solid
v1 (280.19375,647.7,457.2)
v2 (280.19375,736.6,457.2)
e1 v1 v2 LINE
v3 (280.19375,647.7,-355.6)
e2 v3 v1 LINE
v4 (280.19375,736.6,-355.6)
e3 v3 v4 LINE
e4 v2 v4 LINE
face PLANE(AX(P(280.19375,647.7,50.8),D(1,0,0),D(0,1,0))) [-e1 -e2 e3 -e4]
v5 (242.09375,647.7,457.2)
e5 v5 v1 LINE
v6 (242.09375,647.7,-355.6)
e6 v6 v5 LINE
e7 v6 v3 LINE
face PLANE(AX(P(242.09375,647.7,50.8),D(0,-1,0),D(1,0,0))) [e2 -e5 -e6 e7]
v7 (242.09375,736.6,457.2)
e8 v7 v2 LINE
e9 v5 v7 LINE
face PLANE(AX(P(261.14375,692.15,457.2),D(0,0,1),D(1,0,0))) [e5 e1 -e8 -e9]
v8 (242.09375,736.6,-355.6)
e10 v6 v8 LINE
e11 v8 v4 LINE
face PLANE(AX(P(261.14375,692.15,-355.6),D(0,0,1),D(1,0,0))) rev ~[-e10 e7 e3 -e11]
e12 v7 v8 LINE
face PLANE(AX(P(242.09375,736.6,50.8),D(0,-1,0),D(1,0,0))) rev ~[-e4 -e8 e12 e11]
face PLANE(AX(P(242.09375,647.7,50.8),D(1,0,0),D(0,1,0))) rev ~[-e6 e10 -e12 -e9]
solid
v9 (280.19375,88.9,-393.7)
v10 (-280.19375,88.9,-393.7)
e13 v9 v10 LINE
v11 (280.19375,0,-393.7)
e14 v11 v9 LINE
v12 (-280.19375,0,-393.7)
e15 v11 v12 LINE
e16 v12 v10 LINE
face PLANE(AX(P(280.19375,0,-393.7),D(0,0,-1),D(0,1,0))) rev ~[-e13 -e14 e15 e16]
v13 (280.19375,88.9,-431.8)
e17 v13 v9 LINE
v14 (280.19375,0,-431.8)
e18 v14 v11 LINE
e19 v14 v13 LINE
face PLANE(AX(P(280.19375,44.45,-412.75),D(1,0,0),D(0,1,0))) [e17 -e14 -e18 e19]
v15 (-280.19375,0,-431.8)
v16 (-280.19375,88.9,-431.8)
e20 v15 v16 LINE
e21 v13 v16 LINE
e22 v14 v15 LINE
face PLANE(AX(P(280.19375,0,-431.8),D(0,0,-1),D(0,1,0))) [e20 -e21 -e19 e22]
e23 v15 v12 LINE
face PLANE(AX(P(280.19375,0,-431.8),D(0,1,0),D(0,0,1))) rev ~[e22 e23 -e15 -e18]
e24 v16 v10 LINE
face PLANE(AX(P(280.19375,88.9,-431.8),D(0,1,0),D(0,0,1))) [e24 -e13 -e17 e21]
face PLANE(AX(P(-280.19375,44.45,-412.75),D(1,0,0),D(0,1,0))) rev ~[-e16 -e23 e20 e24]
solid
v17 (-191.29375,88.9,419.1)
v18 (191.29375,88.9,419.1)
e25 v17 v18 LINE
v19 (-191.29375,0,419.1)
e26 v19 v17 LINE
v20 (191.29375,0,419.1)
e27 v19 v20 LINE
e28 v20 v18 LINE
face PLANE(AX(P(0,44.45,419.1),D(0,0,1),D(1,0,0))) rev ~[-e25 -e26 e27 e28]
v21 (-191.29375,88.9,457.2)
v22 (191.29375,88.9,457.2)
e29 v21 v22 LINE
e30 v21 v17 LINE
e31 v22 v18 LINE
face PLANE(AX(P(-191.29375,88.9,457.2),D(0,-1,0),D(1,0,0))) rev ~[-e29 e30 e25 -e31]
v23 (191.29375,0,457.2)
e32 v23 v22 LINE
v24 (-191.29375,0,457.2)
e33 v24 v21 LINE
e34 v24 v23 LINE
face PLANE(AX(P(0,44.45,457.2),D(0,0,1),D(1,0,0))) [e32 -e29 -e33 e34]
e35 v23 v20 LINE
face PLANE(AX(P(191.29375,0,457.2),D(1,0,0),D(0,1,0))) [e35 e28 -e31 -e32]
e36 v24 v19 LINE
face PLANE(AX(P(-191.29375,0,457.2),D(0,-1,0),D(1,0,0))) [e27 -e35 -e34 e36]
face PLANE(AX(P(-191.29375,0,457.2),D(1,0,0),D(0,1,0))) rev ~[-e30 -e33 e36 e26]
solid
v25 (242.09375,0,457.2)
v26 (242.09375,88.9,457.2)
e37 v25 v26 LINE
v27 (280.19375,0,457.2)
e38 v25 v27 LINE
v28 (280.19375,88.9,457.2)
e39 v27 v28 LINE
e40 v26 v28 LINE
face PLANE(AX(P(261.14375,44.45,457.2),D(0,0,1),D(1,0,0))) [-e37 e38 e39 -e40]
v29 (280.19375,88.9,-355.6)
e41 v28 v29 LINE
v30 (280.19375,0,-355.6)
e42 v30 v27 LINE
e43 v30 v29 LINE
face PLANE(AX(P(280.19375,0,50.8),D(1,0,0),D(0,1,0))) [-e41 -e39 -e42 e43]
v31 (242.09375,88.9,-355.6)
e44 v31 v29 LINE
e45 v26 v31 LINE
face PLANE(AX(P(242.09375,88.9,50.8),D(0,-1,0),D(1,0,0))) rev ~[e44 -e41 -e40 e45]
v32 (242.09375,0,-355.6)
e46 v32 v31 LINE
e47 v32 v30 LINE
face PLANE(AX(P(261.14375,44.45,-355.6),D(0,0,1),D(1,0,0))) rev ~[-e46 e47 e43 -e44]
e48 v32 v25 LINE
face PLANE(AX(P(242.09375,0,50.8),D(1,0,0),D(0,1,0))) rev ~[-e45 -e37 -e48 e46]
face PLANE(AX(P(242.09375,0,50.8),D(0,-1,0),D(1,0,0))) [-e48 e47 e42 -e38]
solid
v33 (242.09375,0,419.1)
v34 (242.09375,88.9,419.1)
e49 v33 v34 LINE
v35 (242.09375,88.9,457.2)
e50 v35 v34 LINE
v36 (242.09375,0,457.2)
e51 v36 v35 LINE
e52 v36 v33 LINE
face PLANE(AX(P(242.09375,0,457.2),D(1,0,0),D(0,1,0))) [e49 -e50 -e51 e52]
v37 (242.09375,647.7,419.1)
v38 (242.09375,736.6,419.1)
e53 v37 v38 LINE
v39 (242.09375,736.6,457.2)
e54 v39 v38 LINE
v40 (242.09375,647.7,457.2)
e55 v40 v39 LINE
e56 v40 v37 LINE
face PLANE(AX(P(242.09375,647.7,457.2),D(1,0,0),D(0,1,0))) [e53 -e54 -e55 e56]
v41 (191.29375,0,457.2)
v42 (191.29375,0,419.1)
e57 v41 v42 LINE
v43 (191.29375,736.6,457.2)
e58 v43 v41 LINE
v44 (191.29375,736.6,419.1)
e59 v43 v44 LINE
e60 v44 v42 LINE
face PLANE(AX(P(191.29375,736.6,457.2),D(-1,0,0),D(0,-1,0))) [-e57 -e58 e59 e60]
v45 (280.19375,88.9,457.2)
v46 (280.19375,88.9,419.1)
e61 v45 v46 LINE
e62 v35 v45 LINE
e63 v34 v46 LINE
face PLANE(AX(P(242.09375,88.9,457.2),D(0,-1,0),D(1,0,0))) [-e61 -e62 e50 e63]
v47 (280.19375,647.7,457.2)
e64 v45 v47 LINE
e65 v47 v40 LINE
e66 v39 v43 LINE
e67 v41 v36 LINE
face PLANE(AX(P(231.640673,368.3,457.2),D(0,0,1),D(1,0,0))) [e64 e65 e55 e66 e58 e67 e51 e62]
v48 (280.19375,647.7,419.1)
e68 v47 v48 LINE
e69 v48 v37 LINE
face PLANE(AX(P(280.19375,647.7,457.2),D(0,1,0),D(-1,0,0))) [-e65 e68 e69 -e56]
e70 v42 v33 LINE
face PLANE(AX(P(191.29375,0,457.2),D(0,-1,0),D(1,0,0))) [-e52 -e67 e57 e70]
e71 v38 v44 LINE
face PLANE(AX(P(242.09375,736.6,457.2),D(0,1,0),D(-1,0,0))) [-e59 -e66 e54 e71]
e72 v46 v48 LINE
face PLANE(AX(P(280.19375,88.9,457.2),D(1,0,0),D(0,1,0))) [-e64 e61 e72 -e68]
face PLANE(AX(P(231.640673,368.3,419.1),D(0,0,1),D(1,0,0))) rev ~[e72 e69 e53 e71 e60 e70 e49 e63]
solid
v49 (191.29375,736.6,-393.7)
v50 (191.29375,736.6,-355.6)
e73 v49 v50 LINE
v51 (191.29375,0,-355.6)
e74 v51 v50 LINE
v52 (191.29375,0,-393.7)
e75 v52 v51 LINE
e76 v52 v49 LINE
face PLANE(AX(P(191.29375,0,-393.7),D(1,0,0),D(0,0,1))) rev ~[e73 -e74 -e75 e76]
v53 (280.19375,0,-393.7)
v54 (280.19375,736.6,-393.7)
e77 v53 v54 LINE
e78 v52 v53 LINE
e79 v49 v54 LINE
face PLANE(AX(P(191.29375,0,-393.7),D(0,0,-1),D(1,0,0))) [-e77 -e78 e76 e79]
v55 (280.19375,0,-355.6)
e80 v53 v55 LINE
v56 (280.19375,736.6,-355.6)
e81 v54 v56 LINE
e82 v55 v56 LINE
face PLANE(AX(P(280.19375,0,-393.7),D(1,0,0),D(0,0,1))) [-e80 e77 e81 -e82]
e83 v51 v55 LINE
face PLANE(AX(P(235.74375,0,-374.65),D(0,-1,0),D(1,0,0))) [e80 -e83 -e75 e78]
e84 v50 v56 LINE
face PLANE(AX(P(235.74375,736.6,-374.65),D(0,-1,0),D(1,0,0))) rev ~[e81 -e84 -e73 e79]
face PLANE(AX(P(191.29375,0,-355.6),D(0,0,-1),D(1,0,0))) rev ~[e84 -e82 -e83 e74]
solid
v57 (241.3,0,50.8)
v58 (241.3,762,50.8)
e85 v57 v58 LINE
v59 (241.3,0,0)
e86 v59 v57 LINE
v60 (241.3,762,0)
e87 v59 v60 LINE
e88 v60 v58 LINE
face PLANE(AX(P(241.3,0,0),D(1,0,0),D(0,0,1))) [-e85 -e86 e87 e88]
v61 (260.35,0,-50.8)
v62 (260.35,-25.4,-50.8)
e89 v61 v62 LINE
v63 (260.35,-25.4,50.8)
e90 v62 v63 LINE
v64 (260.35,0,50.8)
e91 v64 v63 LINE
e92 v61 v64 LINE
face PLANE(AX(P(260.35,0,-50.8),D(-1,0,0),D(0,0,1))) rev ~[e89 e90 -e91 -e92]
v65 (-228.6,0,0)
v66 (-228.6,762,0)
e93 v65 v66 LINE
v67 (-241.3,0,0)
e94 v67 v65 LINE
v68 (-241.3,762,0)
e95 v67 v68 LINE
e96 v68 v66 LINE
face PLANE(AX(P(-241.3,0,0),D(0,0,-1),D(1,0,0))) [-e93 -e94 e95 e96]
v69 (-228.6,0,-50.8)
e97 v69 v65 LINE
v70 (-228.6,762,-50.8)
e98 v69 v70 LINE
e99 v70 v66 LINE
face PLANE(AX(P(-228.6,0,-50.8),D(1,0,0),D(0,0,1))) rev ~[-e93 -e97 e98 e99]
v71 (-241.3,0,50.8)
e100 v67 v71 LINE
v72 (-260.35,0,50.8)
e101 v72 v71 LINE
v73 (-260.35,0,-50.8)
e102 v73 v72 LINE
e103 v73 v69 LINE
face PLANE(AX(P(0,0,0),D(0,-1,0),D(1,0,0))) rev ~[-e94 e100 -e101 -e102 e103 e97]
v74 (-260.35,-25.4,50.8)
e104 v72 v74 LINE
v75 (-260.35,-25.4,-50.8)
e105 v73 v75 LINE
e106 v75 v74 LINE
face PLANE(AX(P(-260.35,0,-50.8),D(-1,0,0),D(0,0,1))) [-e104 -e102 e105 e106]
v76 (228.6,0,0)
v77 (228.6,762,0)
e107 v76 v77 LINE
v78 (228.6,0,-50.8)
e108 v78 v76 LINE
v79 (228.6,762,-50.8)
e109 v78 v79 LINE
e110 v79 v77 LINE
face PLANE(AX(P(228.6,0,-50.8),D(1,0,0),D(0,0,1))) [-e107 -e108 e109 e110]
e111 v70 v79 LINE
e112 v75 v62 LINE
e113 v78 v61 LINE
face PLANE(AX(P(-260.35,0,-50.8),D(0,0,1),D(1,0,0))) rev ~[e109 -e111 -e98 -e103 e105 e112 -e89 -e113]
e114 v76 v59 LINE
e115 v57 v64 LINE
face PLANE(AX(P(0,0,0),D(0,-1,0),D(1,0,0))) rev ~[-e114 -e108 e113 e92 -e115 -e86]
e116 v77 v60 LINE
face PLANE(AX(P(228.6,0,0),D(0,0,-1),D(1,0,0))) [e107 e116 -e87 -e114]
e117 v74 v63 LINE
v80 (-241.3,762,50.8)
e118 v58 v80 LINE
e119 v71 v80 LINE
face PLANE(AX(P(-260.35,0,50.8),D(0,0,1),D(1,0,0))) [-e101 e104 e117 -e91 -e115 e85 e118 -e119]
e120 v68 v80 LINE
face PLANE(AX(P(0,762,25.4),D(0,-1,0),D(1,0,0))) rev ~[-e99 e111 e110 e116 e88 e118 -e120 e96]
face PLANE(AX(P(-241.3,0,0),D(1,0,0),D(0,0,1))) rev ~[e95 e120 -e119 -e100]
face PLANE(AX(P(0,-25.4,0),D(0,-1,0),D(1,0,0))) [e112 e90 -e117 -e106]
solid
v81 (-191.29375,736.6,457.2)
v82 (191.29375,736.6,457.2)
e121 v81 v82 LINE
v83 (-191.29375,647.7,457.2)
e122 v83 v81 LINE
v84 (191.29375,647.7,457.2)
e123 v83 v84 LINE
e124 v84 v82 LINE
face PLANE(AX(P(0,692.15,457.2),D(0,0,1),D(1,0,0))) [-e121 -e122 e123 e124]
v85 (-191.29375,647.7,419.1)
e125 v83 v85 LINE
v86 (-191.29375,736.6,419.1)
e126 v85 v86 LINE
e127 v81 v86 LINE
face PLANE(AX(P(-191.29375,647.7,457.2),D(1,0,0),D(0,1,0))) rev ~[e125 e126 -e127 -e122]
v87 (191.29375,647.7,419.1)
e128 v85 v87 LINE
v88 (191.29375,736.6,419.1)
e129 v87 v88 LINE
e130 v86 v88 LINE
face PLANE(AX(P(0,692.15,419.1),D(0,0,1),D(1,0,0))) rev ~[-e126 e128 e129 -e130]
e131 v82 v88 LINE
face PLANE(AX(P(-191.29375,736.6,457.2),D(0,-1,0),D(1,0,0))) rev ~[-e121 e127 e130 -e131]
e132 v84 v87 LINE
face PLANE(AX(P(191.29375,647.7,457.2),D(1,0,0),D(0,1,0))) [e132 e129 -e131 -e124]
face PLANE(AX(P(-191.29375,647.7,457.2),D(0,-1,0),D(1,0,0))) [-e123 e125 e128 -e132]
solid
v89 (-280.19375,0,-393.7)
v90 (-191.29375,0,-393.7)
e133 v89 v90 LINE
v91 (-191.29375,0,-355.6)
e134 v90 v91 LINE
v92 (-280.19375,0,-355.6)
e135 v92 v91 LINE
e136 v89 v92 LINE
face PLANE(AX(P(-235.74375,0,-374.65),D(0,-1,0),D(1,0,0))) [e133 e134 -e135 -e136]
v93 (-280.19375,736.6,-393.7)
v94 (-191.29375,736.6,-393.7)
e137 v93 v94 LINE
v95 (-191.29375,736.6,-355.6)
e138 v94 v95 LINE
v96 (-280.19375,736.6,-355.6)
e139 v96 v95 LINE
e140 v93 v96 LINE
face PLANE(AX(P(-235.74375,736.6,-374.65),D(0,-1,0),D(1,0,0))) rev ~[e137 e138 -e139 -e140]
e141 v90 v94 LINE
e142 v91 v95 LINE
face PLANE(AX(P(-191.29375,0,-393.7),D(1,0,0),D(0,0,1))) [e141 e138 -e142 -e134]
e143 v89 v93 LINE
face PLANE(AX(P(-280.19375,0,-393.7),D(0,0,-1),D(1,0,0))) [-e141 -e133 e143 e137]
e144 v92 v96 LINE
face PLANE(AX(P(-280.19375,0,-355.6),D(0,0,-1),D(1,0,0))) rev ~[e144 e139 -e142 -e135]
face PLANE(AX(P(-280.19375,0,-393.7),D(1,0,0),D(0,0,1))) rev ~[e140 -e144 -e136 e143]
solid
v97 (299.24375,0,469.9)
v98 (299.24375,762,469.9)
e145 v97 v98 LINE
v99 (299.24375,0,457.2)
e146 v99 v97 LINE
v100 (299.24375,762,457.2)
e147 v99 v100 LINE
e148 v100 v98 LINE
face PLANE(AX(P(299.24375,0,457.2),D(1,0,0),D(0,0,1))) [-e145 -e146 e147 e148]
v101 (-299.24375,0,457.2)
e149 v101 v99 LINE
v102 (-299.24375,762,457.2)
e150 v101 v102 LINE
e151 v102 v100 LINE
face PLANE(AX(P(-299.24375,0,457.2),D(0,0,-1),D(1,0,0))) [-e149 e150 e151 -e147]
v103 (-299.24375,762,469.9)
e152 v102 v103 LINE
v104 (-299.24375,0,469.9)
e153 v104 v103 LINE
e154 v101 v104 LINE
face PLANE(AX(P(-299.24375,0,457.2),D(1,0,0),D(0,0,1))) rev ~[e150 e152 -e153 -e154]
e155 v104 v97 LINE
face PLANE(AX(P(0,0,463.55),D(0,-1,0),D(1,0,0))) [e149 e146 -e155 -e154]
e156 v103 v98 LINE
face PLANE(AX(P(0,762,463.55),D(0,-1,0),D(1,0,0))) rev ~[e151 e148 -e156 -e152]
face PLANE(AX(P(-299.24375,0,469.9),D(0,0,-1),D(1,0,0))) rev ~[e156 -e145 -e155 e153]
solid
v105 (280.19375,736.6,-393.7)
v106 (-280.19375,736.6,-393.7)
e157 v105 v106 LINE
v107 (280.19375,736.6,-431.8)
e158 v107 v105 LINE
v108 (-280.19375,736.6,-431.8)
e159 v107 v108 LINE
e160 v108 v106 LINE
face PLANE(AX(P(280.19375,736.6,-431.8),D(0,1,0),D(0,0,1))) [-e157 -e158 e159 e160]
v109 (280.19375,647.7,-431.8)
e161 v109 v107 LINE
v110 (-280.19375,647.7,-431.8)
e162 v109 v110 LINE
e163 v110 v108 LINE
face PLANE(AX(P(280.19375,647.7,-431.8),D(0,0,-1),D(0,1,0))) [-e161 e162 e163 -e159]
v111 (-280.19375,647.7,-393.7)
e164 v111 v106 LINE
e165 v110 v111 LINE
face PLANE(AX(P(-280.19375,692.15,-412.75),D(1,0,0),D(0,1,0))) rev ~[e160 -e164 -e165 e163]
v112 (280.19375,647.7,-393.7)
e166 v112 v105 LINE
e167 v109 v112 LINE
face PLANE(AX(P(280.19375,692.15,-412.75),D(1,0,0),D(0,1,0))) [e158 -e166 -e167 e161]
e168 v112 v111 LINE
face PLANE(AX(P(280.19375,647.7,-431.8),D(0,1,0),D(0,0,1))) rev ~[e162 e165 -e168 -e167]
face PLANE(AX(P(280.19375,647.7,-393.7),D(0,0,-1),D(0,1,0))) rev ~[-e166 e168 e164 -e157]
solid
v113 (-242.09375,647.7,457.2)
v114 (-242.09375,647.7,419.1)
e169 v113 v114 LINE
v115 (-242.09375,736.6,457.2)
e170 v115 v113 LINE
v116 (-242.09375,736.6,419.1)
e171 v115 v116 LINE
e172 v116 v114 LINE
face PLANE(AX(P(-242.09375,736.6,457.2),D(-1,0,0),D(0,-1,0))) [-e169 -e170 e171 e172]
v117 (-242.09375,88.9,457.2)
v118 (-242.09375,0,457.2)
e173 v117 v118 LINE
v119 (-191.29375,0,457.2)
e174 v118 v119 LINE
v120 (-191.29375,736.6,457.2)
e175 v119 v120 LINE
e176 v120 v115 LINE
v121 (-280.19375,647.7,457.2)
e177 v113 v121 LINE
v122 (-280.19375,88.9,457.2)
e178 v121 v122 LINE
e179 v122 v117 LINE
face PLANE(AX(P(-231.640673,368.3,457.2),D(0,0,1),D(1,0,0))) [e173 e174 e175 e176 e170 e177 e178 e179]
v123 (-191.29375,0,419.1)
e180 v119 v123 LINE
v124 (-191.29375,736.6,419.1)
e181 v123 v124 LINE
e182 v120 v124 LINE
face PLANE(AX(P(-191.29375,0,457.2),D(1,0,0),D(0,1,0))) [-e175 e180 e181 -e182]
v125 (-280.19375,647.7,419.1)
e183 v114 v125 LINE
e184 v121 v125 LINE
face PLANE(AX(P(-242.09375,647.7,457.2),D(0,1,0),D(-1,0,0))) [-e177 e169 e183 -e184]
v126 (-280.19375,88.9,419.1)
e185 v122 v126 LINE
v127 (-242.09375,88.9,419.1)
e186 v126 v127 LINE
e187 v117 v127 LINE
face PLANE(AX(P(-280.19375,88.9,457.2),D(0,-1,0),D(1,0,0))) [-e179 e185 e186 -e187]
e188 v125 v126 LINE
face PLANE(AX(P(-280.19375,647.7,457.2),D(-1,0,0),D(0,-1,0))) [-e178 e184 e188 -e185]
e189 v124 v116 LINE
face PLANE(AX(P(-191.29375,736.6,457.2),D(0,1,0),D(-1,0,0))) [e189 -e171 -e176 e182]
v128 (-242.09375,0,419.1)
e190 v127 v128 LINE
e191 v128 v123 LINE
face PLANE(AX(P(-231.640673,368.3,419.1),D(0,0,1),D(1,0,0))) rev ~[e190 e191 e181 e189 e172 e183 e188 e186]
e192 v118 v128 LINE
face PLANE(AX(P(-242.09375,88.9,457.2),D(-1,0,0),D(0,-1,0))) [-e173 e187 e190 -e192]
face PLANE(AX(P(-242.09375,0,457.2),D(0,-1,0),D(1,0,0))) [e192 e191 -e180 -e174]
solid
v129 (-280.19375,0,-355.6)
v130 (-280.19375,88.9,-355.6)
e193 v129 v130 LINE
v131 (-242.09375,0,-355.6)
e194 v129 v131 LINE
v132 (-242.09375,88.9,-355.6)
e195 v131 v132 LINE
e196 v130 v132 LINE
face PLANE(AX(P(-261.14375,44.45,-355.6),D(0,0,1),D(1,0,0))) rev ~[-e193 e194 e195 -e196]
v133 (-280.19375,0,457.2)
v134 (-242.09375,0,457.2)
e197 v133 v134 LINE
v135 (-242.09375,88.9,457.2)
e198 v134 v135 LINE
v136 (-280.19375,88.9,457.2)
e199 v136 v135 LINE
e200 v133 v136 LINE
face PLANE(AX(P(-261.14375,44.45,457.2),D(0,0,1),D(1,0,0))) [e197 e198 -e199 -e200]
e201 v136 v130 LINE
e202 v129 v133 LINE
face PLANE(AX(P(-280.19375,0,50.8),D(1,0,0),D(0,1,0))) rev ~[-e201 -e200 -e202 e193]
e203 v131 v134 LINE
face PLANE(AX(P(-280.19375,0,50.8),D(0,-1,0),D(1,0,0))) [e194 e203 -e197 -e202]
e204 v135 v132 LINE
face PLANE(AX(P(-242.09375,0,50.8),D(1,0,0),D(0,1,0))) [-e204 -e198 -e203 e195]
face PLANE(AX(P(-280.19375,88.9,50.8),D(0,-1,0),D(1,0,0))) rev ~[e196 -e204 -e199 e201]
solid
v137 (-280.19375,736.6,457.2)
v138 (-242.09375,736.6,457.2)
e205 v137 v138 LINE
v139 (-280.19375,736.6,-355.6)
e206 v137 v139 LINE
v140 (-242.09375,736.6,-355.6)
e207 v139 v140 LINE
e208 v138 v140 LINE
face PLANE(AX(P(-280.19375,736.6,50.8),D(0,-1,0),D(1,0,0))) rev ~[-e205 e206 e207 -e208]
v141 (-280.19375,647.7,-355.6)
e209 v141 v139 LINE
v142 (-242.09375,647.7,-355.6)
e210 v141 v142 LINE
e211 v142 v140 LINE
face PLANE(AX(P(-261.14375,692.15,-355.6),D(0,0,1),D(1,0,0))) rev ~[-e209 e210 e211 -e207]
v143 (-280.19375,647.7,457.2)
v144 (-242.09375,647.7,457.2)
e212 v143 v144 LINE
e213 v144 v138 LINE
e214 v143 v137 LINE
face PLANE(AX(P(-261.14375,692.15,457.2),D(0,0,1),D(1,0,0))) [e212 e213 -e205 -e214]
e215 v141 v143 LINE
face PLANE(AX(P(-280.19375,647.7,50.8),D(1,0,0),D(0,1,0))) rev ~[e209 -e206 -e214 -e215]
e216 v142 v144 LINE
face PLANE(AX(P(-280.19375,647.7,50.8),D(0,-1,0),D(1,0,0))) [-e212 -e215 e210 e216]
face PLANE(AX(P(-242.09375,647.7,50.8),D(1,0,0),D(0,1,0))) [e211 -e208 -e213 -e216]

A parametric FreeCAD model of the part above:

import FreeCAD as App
import Part
import Sketcher
Q = App.Units.Quantity

doc = App.newDocument("Part")
body = doc.addObject("PartDesign::Body", "Body")

sketch1 = doc.addObject("Sketcher::SketchObject", "Sketch")
body.addObject(sketch1)
sketch1.AttachmentSupport = (doc.XZ_Plane, [""])
sketch1.MapMode = "FlatFace"
sketch1.addGeometry([
    Part.LineSegment(App.Vector(241.3, 0, 0), App.Vector(241.3, 50.8, 0)),
    Part.LineSegment(App.Vector(241.3, 50.8, 0), App.Vector(-241.3, 50.8, 0)),
    Part.LineSegment(App.Vector(-241.3, 50.8, 0), App.Vector(-241.3, 0, 0)),
    Part.LineSegment(App.Vector(-241.3, 0, 0), App.Vector(-228.6, 0, 0)),
    Part.LineSegment(App.Vector(-228.6, 0, 0), App.Vector(-228.6, -50.8, 0)),
    Part.LineSegment(App.Vector(-228.6, -50.8, 0), App.Vector(228.6, -50.8, 0)),
    Part.LineSegment(App.Vector(228.6, -50.8, 0), App.Vector(228.6, 0, 0)),
    Part.LineSegment(App.Vector(228.6, 0, 0), App.Vector(241.3, 0, 0)),
], False)
sketch1.addConstraint([
    Sketcher.Constraint("Coincident", 0, 2, 1, 1),
    Sketcher.Constraint("Coincident", 1, 2, 2, 1),
    Sketcher.Constraint("Coincident", 2, 2, 3, 1),
    Sketcher.Constraint("Coincident", 3, 2, 4, 1),
    Sketcher.Constraint("Coincident", 4, 2, 5, 1),
    Sketcher.Constraint("Coincident", 5, 2, 6, 1),
    Sketcher.Constraint("Coincident", 6, 2, 7, 1),
    Sketcher.Constraint("Coincident", 7, 2, 0, 1),
    Sketcher.Constraint("Vertical", 0),
    Sketcher.Constraint("Horizontal", 1),
    Sketcher.Constraint("Vertical", 2),
    Sketcher.Constraint("Horizontal", 3),
    Sketcher.Constraint("Vertical", 4),
    Sketcher.Constraint("Horizontal", 5),
    Sketcher.Constraint("Vertical", 6),
    Sketcher.Constraint("Horizontal", 7),
    Sketcher.Constraint("Symmetric", 3, 2, 6, 2, -1, 1),
    Sketcher.Constraint("Symmetric", 2, 2, 7, 2, -2),
    Sketcher.Constraint("Equal", 2, 4),
    Sketcher.Constraint("DistanceX", 1, 2, 1, 1, Q("19 in")),
    Sketcher.Constraint("DistanceX", 5, 1, 5, 2, Q("18 in")),
    Sketcher.Constraint("DistanceY", 0, 1, 0, 2, Q("2 in")),
])
pad1 = doc.addObject("PartDesign::Pad", "Pad")
body.addObject(pad1)
pad1.Profile = sketch1
pad1.Length = Q("30 in")
pad1.Reversed = True

sketch2 = doc.addObject("Sketcher::SketchObject", "Sketch001")
body.addObject(sketch2)
sketch2.AttachmentSupport = (doc.XZ_Plane, [""])
sketch2.MapMode = "FlatFace"
sketch2.addGeometry([
    Part.LineSegment(App.Vector(-260.35, 50.8, 0), App.Vector(-260.35, -50.8, 0)),
    Part.LineSegment(App.Vector(-260.35, -50.8, 0), App.Vector(260.35, -50.8, 0)),
    Part.LineSegment(App.Vector(260.35, -50.8, 0), App.Vector(260.35, 50.8, 0)),
    Part.LineSegment(App.Vector(260.35, 50.8, 0), App.Vector(-260.35, 50.8, 0)),
], False)
sketch2.addConstraint([
    Sketcher.Constraint("Coincident", 0, 2, 1, 1),
    Sketcher.Constraint("Coincident", 1, 2, 2, 1),
    Sketcher.Constraint("Coincident", 2, 2, 3, 1),
    Sketcher.Constraint("Coincident", 3, 2, 0, 1),
    Sketcher.Constraint("Vertical", 0),
    Sketcher.Constraint("Horizontal", 1),
    Sketcher.Constraint("Vertical", 2),
    Sketcher.Constraint("Horizontal", 3),
    Sketcher.Constraint("Symmetric", 0, 2, 2, 2, -1, 1),
    Sketcher.Constraint("DistanceY", 0, 2, 0, 1, Q("4 in")),
    Sketcher.Constraint("DistanceX", 1, 1, 1, 2, Q("20.5 in")),
])
pad2 = doc.addObject("PartDesign::Pad", "Pad001")
body.addObject(pad2)
pad2.Profile = sketch2
pad2.Length = Q("1 in")
body2 = doc.addObject("PartDesign::Body", "Body001")

sketch3 = doc.addObject("Sketcher::SketchObject", "Sketch002")
body2.addObject(sketch3)
sketch3.AttachmentSupport = (doc.getObject("XY_Plane001"), [""])
sketch3.MapMode = "FlatFace"
sketch3.AttachmentOffset = App.Placement(App.Vector(0, 0, 2 * 25.4), App.Rotation())
sketch3.addGeometry([
    Part.LineSegment(App.Vector(-280.19375, 88.9, 0), App.Vector(-280.19375, 0, 0)),
    Part.LineSegment(App.Vector(-280.19375, 0, 0), App.Vector(-242.09375, 0, 0)),
    Part.LineSegment(App.Vector(-242.09375, 0, 0), App.Vector(-242.09375, 88.9, 0)),
    Part.LineSegment(App.Vector(-242.09375, 88.9, 0), App.Vector(-280.19375, 88.9, 0)),
], False)
sketch3.addConstraint([
    Sketcher.Constraint("Coincident", 0, 2, 1, 1),
    Sketcher.Constraint("Coincident", 1, 2, 2, 1),
    Sketcher.Constraint("Coincident", 2, 2, 3, 1),
    Sketcher.Constraint("Coincident", 3, 2, 0, 1),
    Sketcher.Constraint("Vertical", 0),
    Sketcher.Constraint("Horizontal", 1),
    Sketcher.Constraint("Vertical", 2),
    Sketcher.Constraint("Horizontal", 3),
    Sketcher.Constraint("PointOnObject", 0, 2, -1),
    Sketcher.Constraint("DistanceX", 1, 1, 1, 2, Q("1.5 in")),
    Sketcher.Constraint("DistanceY", 0, 2, 0, 1, Q("3.5 in")),
    Sketcher.Constraint("DistanceX", 0, 2, -1, 1, Q("11.03125 in")),
])
pad3 = doc.addObject("PartDesign::Pad", "Pad002")
body2.addObject(pad3)
pad3.Profile = sketch3
pad3.Length = Q("32 in")
pad3.Midplane = True
body3 = doc.addObject("PartDesign::Body", "Body002")

sketch4 = doc.addObject("Sketcher::SketchObject", "Sketch003")
body3.addObject(sketch4)
sketch4.AttachmentSupport = (doc.getObject("XY_Plane002"), [""])
sketch4.MapMode = "FlatFace"
sketch4.AttachmentOffset = App.Placement(App.Vector(0, 0, 2 * 25.4), App.Rotation())
sketch4.addGeometry([
    Part.LineSegment(App.Vector(-280.19375, 736.6, 0), App.Vector(-280.19375, 647.7, 0)),
    Part.LineSegment(App.Vector(-280.19375, 647.7, 0), App.Vector(-242.09375, 647.7, 0)),
    Part.LineSegment(App.Vector(-242.09375, 647.7, 0), App.Vector(-242.09375, 736.6, 0)),
    Part.LineSegment(App.Vector(-242.09375, 736.6, 0), App.Vector(-280.19375, 736.6, 0)),
], False)
sketch4.addConstraint([
    Sketcher.Constraint("Coincident", 0, 2, 1, 1),
    Sketcher.Constraint("Coincident", 1, 2, 2, 1),
    Sketcher.Constraint("Coincident", 2, 2, 3, 1),
    Sketcher.Constraint("Coincident", 3, 2, 0, 1),
    Sketcher.Constraint("Vertical", 0),
    Sketcher.Constraint("Horizontal", 1),
    Sketcher.Constraint("Vertical", 2),
    Sketcher.Constraint("Horizontal", 3),
    Sketcher.Constraint("DistanceX", 1, 1, 1, 2, Q("1.5 in")),
    Sketcher.Constraint("DistanceY", 0, 2, 0, 1, Q("3.5 in")),
    Sketcher.Constraint("DistanceY", -1, 1, 2, 2, Q("29 in")),
    Sketcher.Constraint("DistanceX", 0, 2, -1, 1, Q("11.03125 in")),
])
pad4 = doc.addObject("PartDesign::Pad", "Pad003")
body3.addObject(pad4)
pad4.Profile = sketch4
pad4.Length = Q("32 in")
pad4.Midplane = True
body4 = doc.addObject("PartDesign::Body", "Body003")

sketch5 = doc.addObject("Sketcher::SketchObject", "Sketch004")
body4.addObject(sketch5)
sketch5.AttachmentSupport = (doc.getObject("XY_Plane003"), [""])
sketch5.MapMode = "FlatFace"
sketch5.AttachmentOffset = App.Placement(App.Vector(0, 0, 2 * 25.4), App.Rotation())
sketch5.addGeometry([
    Part.LineSegment(App.Vector(242.09375, 736.6, 0), App.Vector(242.09375, 647.7, 0)),
    Part.LineSegment(App.Vector(242.09375, 647.7, 0), App.Vector(280.19375, 647.7, 0)),
    Part.LineSegment(App.Vector(280.19375, 647.7, 0), App.Vector(280.19375, 736.6, 0)),
    Part.LineSegment(App.Vector(280.19375, 736.6, 0), App.Vector(242.09375, 736.6, 0)),
], False)
sketch5.addConstraint([
    Sketcher.Constraint("Coincident", 0, 2, 1, 1),
    Sketcher.Constraint("Coincident", 1, 2, 2, 1),
    Sketcher.Constraint("Coincident", 2, 2, 3, 1),
    Sketcher.Constraint("Coincident", 3, 2, 0, 1),
    Sketcher.Constraint("Vertical", 0),
    Sketcher.Constraint("Horizontal", 1),
    Sketcher.Constraint("Vertical", 2),
    Sketcher.Constraint("Horizontal", 3),
    Sketcher.Constraint("DistanceX", 1, 1, 1, 2, Q("1.5 in")),
    Sketcher.Constraint("DistanceY", 0, 2, 0, 1, Q("3.5 in")),
    Sketcher.Constraint("DistanceY", -1, 1, 2, 2, Q("29 in")),
    Sketcher.Constraint("DistanceX", -1, 1, 0, 2, Q("9.53125 in")),
])
pad5 = doc.addObject("PartDesign::Pad", "Pad004")
body4.addObject(pad5)
pad5.Profile = sketch5
pad5.Length = Q("32 in")
pad5.Midplane = True
body5 = doc.addObject("PartDesign::Body", "Body004")

sketch6 = doc.addObject("Sketcher::SketchObject", "Sketch005")
body5.addObject(sketch6)
sketch6.AttachmentSupport = (doc.getObject("XY_Plane004"), [""])
sketch6.MapMode = "FlatFace"
sketch6.AttachmentOffset = App.Placement(App.Vector(0, 0, 2 * 25.4), App.Rotation())
sketch6.addGeometry([
    Part.LineSegment(App.Vector(242.09375, 88.9, 0), App.Vector(242.09375, 0, 0)),
    Part.LineSegment(App.Vector(242.09375, 0, 0), App.Vector(280.19375, 0, 0)),
    Part.LineSegment(App.Vector(280.19375, 0, 0), App.Vector(280.19375, 88.9, 0)),
    Part.LineSegment(App.Vector(280.19375, 88.9, 0), App.Vector(242.09375, 88.9, 0)),
], False)
sketch6.addConstraint([
    Sketcher.Constraint("Coincident", 0, 2, 1, 1),
    Sketcher.Constraint("Coincident", 1, 2, 2, 1),
    Sketcher.Constraint("Coincident", 2, 2, 3, 1),
    Sketcher.Constraint("Coincident", 3, 2, 0, 1),
    Sketcher.Constraint("Vertical", 0),
    Sketcher.Constraint("Horizontal", 1),
    Sketcher.Constraint("Vertical", 2),
    Sketcher.Constraint("Horizontal", 3),
    Sketcher.Constraint("PointOnObject", 0, 2, -1),
    Sketcher.Constraint("DistanceX", 1, 1, 1, 2, Q("1.5 in")),
    Sketcher.Constraint("DistanceY", 0, 2, 0, 1, Q("3.5 in")),
    Sketcher.Constraint("DistanceX", -1, 1, 0, 2, Q("9.53125 in")),
])
pad6 = doc.addObject("PartDesign::Pad", "Pad005")
body5.addObject(pad6)
pad6.Profile = sketch6
pad6.Length = Q("32 in")
pad6.Midplane = True
body6 = doc.addObject("PartDesign::Body", "Body005")

sketch7 = doc.addObject("Sketcher::SketchObject", "Sketch006")
body6.addObject(sketch7)
sketch7.AttachmentSupport = (doc.getObject("XZ_Plane005"), [""])
sketch7.MapMode = "FlatFace"
sketch7.addGeometry([
    Part.LineSegment(App.Vector(-280.19375, -355.6, 0), App.Vector(-280.19375, -393.7, 0)),
    Part.LineSegment(App.Vector(-280.19375, -393.7, 0), App.Vector(-191.29375, -393.7, 0)),
    Part.LineSegment(App.Vector(-191.29375, -393.7, 0), App.Vector(-191.29375, -355.6, 0)),
    Part.LineSegment(App.Vector(-191.29375, -355.6, 0), App.Vector(-280.19375, -355.6, 0)),
], False)
sketch7.addConstraint([
    Sketcher.Constraint("Coincident", 0, 2, 1, 1),
    Sketcher.Constraint("Coincident", 1, 2, 2, 1),
    Sketcher.Constraint("Coincident", 2, 2, 3, 1),
    Sketcher.Constraint("Coincident", 3, 2, 0, 1),
    Sketcher.Constraint("Vertical", 0),
    Sketcher.Constraint("Horizontal", 1),
    Sketcher.Constraint("Vertical", 2),
    Sketcher.Constraint("Horizontal", 3),
    Sketcher.Constraint("DistanceX", 1, 1, 1, 2, Q("3.5 in")),
    Sketcher.Constraint("DistanceY", 0, 2, 0, 1, Q("1.5 in")),
    Sketcher.Constraint("DistanceY", 2, 2, -1, 1, Q("14 in")),
    Sketcher.Constraint("DistanceX", 0, 2, -1, 1, Q("11.03125 in")),
])
pad7 = doc.addObject("PartDesign::Pad", "Pad006")
body6.addObject(pad7)
pad7.Profile = sketch7
pad7.Length = Q("29 in")
pad7.Reversed = True
body7 = doc.addObject("PartDesign::Body", "Body006")

sketch8 = doc.addObject("Sketcher::SketchObject", "Sketch007")
body7.addObject(sketch8)
sketch8.AttachmentSupport = (doc.getObject("XZ_Plane006"), [""])
sketch8.MapMode = "FlatFace"
sketch8.addGeometry([
    Part.LineSegment(App.Vector(191.29375, -355.6, 0), App.Vector(191.29375, -393.7, 0)),
    Part.LineSegment(App.Vector(191.29375, -393.7, 0), App.Vector(280.19375, -393.7, 0)),
    Part.LineSegment(App.Vector(280.19375, -393.7, 0), App.Vector(280.19375, -355.6, 0)),
    Part.LineSegment(App.Vector(280.19375, -355.6, 0), App.Vector(191.29375, -355.6, 0)),
], False)
sketch8.addConstraint([
    Sketcher.Constraint("Coincident", 0, 2, 1, 1),
    Sketcher.Constraint("Coincident", 1, 2, 2, 1),
    Sketcher.Constraint("Coincident", 2, 2, 3, 1),
    Sketcher.Constraint("Coincident", 3, 2, 0, 1),
    Sketcher.Constraint("Vertical", 0),
    Sketcher.Constraint("Horizontal", 1),
    Sketcher.Constraint("Vertical", 2),
    Sketcher.Constraint("Horizontal", 3),
    Sketcher.Constraint("DistanceX", 1, 1, 1, 2, Q("3.5 in")),
    Sketcher.Constraint("DistanceY", 0, 2, 0, 1, Q("1.5 in")),
    Sketcher.Constraint("DistanceY", 2, 2, -1, 1, Q("14 in")),
    Sketcher.Constraint("DistanceX", -1, 1, 0, 2, Q("7.53125 in")),
])
pad8 = doc.addObject("PartDesign::Pad", "Pad007")
body7.addObject(pad8)
pad8.Profile = sketch8
pad8.Length = Q("29 in")
pad8.Reversed = True
body8 = doc.addObject("PartDesign::Body", "Body007")

sketch9 = doc.addObject("Sketcher::SketchObject", "Sketch008")
body8.addObject(sketch9)
sketch9.AttachmentSupport = (doc.getObject("YZ_Plane007"), [""])
sketch9.MapMode = "FlatFace"
sketch9.AttachmentOffset = App.Placement(App.Vector(0, 0, 11.03125 * 25.4), App.Rotation())
sketch9.addGeometry([
    Part.LineSegment(App.Vector(0, -393.7, 0), App.Vector(0, -431.8, 0)),
    Part.LineSegment(App.Vector(0, -431.8, 0), App.Vector(88.9, -431.8, 0)),
    Part.LineSegment(App.Vector(88.9, -431.8, 0), App.Vector(88.9, -393.7, 0)),
    Part.LineSegment(App.Vector(88.9, -393.7, 0), App.Vector(0, -393.7, 0)),
], False)
sketch9.addConstraint([
    Sketcher.Constraint("Coincident", 0, 2, 1, 1),
    Sketcher.Constraint("Coincident", 1, 2, 2, 1),
    Sketcher.Constraint("Coincident", 2, 2, 3, 1),
    Sketcher.Constraint("Coincident", 3, 2, 0, 1),
    Sketcher.Constraint("Vertical", 0),
    Sketcher.Constraint("Horizontal", 1),
    Sketcher.Constraint("Vertical", 2),
    Sketcher.Constraint("Horizontal", 3),
    Sketcher.Constraint("PointOnObject", 0, 2, -2),
    Sketcher.Constraint("DistanceX", 1, 1, 1, 2, Q("3.5 in")),
    Sketcher.Constraint("DistanceY", 0, 2, 0, 1, Q("1.5 in")),
    Sketcher.Constraint("DistanceY", 0, 2, -1, 1, Q("17 in")),
])
pad9 = doc.addObject("PartDesign::Pad", "Pad008")
body8.addObject(pad9)
pad9.Profile = sketch9
pad9.Length = Q("22.0625 in")
pad9.Reversed = True
body9 = doc.addObject("PartDesign::Body", "Body008")

sketch10 = doc.addObject("Sketcher::SketchObject", "Sketch009")
body9.addObject(sketch10)
sketch10.AttachmentSupport = (doc.getObject("YZ_Plane008"), [""])
sketch10.MapMode = "FlatFace"
sketch10.AttachmentOffset = App.Placement(App.Vector(0, 0, 11.03125 * 25.4), App.Rotation())
sketch10.addGeometry([
    Part.LineSegment(App.Vector(647.7, -393.7, 0), App.Vector(647.7, -431.8, 0)),
    Part.LineSegment(App.Vector(647.7, -431.8, 0), App.Vector(736.6, -431.8, 0)),
    Part.LineSegment(App.Vector(736.6, -431.8, 0), App.Vector(736.6, -393.7, 0)),
    Part.LineSegment(App.Vector(736.6, -393.7, 0), App.Vector(647.7, -393.7, 0)),
], False)
sketch10.addConstraint([
    Sketcher.Constraint("Coincident", 0, 2, 1, 1),
    Sketcher.Constraint("Coincident", 1, 2, 2, 1),
    Sketcher.Constraint("Coincident", 2, 2, 3, 1),
    Sketcher.Constraint("Coincident", 3, 2, 0, 1),
    Sketcher.Constraint("Vertical", 0),
    Sketcher.Constraint("Horizontal", 1),
    Sketcher.Constraint("Vertical", 2),
    Sketcher.Constraint("Horizontal", 3),
    Sketcher.Constraint("DistanceX", 1, 1, 1, 2, Q("3.5 in")),
    Sketcher.Constraint("DistanceY", 0, 2, 0, 1, Q("1.5 in")),
    Sketcher.Constraint("DistanceY", 0, 2, -1, 1, Q("17 in")),
    Sketcher.Constraint("DistanceX", -1, 1, 1, 2, Q("29 in")),
])
pad10 = doc.addObject("PartDesign::Pad", "Pad009")
body9.addObject(pad10)
pad10.Profile = sketch10
pad10.Length = Q("22.0625 in")
pad10.Reversed = True
body10 = doc.addObject("PartDesign::Body", "Body009")

sketch11 = doc.addObject("Sketcher::SketchObject", "Sketch010")
body10.addObject(sketch11)
sketch11.AttachmentSupport = (doc.getObject("XY_Plane009"), [""])
sketch11.MapMode = "FlatFace"
sketch11.AttachmentOffset = App.Placement(App.Vector(0, 0, 18 * 25.4), App.Rotation())
sketch11.addGeometry([
    Part.LineSegment(App.Vector(-242.09375, 647.7, 0), App.Vector(-280.19375, 647.7, 0)),
    Part.LineSegment(App.Vector(-280.19375, 647.7, 0), App.Vector(-280.19375, 88.9, 0)),
    Part.LineSegment(App.Vector(-280.19375, 88.9, 0), App.Vector(-242.09375, 88.9, 0)),
    Part.LineSegment(App.Vector(-242.09375, 88.9, 0), App.Vector(-242.09375, 0, 0)),
    Part.LineSegment(App.Vector(-242.09375, 0, 0), App.Vector(-191.29375, 0, 0)),
    Part.LineSegment(App.Vector(-191.29375, 0, 0), App.Vector(-191.29375, 736.6, 0)),
    Part.LineSegment(App.Vector(-191.29375, 736.6, 0), App.Vector(-242.09375, 736.6, 0)),
    Part.LineSegment(App.Vector(-242.09375, 736.6, 0), App.Vector(-242.09375, 647.7, 0)),
], False)
sketch11.addConstraint([
    Sketcher.Constraint("Coincident", 0, 2, 1, 1),
    Sketcher.Constraint("Coincident", 1, 2, 2, 1),
    Sketcher.Constraint("Coincident", 2, 2, 3, 1),
    Sketcher.Constraint("Coincident", 3, 2, 4, 1),
    Sketcher.Constraint("Coincident", 4, 2, 5, 1),
    Sketcher.Constraint("Coincident", 5, 2, 6, 1),
    Sketcher.Constraint("Coincident", 6, 2, 7, 1),
    Sketcher.Constraint("Coincident", 7, 2, 0, 1),
    Sketcher.Constraint("Horizontal", 0),
    Sketcher.Constraint("Vertical", 1),
    Sketcher.Constraint("Horizontal", 2),
    Sketcher.Constraint("Vertical", 3),
    Sketcher.Constraint("Horizontal", 4),
    Sketcher.Constraint("Vertical", 5),
    Sketcher.Constraint("Horizontal", 6),
    Sketcher.Constraint("Vertical", 7),
    Sketcher.Constraint("PointOnObject", 3, 2, -1),
    Sketcher.Constraint("Vertical", 3, 2, 6, 2),
    Sketcher.Constraint("Equal", 3, 7),
    Sketcher.Constraint("DistanceX", 4, 1, 4, 2, Q("2 in")),
    Sketcher.Constraint("DistanceY", 1, 2, 1, 1, Q("22 in")),
    Sketcher.Constraint("DistanceY", 5, 1, 5, 2, Q("29 in")),
    Sketcher.Constraint("DistanceX", 0, 2, 0, 1, Q("1.5 in")),
    Sketcher.Constraint("DistanceX", 0, 2, -1, 1, Q("11.03125 in")),
])
pad11 = doc.addObject("PartDesign::Pad", "Pad010")
body10.addObject(pad11)
pad11.Profile = sketch11
pad11.Length = Q("1.5 in")
pad11.Reversed = True
body11 = doc.addObject("PartDesign::Body", "Body010")

sketch12 = doc.addObject("Sketcher::SketchObject", "Sketch011")
body11.addObject(sketch12)
sketch12.AttachmentSupport = (doc.getObject("XY_Plane010"), [""])
sketch12.MapMode = "FlatFace"
sketch12.AttachmentOffset = App.Placement(App.Vector(0, 0, 18 * 25.4), App.Rotation())
sketch12.addGeometry([
    Part.LineSegment(App.Vector(242.09375, 736.6, 0), App.Vector(191.29375, 736.6, 0)),
    Part.LineSegment(App.Vector(191.29375, 736.6, 0), App.Vector(191.29375, 0, 0)),
    Part.LineSegment(App.Vector(191.29375, 0, 0), App.Vector(242.09375, 0, 0)),
    Part.LineSegment(App.Vector(242.09375, 0, 0), App.Vector(242.09375, 88.9, 0)),
    Part.LineSegment(App.Vector(242.09375, 88.9, 0), App.Vector(280.19375, 88.9, 0)),
    Part.LineSegment(App.Vector(280.19375, 88.9, 0), App.Vector(280.19375, 647.7, 0)),
    Part.LineSegment(App.Vector(280.19375, 647.7, 0), App.Vector(242.09375, 647.7, 0)),
    Part.LineSegment(App.Vector(242.09375, 647.7, 0), App.Vector(242.09375, 736.6, 0)),
], False)
sketch12.addConstraint([
    Sketcher.Constraint("Coincident", 0, 2, 1, 1),
    Sketcher.Constraint("Coincident", 1, 2, 2, 1),
    Sketcher.Constraint("Coincident", 2, 2, 3, 1),
    Sketcher.Constraint("Coincident", 3, 2, 4, 1),
    Sketcher.Constraint("Coincident", 4, 2, 5, 1),
    Sketcher.Constraint("Coincident", 5, 2, 6, 1),
    Sketcher.Constraint("Coincident", 6, 2, 7, 1),
    Sketcher.Constraint("Coincident", 7, 2, 0, 1),
    Sketcher.Constraint("Horizontal", 0),
    Sketcher.Constraint("Vertical", 1),
    Sketcher.Constraint("Horizontal", 2),
    Sketcher.Constraint("Vertical", 3),
    Sketcher.Constraint("Horizontal", 4),
    Sketcher.Constraint("Vertical", 5),
    Sketcher.Constraint("Horizontal", 6),
    Sketcher.Constraint("Vertical", 7),
    Sketcher.Constraint("PointOnObject", 1, 2, -1),
    Sketcher.Constraint("Vertical", 3, 2, 6, 2),
    Sketcher.Constraint("Equal", 3, 7),
    Sketcher.Constraint("DistanceX", 0, 2, 0, 1, Q("2 in")),
    Sketcher.Constraint("DistanceY", 1, 2, 1, 1, Q("29 in")),
    Sketcher.Constraint("DistanceY", 5, 1, 5, 2, Q("22 in")),
    Sketcher.Constraint("DistanceX", 4, 1, 4, 2, Q("1.5 in")),
    Sketcher.Constraint("DistanceX", -1, 1, 0, 2, Q("7.53125 in")),
])
pad12 = doc.addObject("PartDesign::Pad", "Pad011")
body11.addObject(pad12)
pad12.Profile = sketch12
pad12.Length = Q("1.5 in")
pad12.Reversed = True
body12 = doc.addObject("PartDesign::Body", "Body011")

sketch13 = doc.addObject("Sketcher::SketchObject", "Sketch012")
body12.addObject(sketch13)
sketch13.AttachmentSupport = (doc.getObject("XY_Plane011"), [""])
sketch13.MapMode = "FlatFace"
sketch13.AttachmentOffset = App.Placement(App.Vector(0, 0, 18 * 25.4), App.Rotation())
sketch13.addGeometry([
    Part.LineSegment(App.Vector(-191.29375, 736.6, 0), App.Vector(-191.29375, 647.7, 0)),
    Part.LineSegment(App.Vector(-191.29375, 647.7, 0), App.Vector(191.29375, 647.7, 0)),
    Part.LineSegment(App.Vector(191.29375, 647.7, 0), App.Vector(191.29375, 736.6, 0)),
    Part.LineSegment(App.Vector(191.29375, 736.6, 0), App.Vector(-191.29375, 736.6, 0)),
], False)
sketch13.addConstraint([
    Sketcher.Constraint("Coincident", 0, 2, 1, 1),
    Sketcher.Constraint("Coincident", 1, 2, 2, 1),
    Sketcher.Constraint("Coincident", 2, 2, 3, 1),
    Sketcher.Constraint("Coincident", 3, 2, 0, 1),
    Sketcher.Constraint("Vertical", 0),
    Sketcher.Constraint("Horizontal", 1),
    Sketcher.Constraint("Vertical", 2),
    Sketcher.Constraint("Horizontal", 3),
    Sketcher.Constraint("DistanceY", 0, 2, 0, 1, Q("3.5 in")),
    Sketcher.Constraint("DistanceY", -1, 1, 2, 2, Q("29 in")),
    Sketcher.Constraint("DistanceX", 1, 1, 1, 2, Q("15.0625 in")),
    Sketcher.Constraint("DistanceX", 0, 2, -1, 1, Q("7.53125 in")),
])
pad13 = doc.addObject("PartDesign::Pad", "Pad012")
body12.addObject(pad13)
pad13.Profile = sketch13
pad13.Length = Q("1.5 in")
pad13.Reversed = True
body13 = doc.addObject("PartDesign::Body", "Body012")

sketch14 = doc.addObject("Sketcher::SketchObject", "Sketch013")
body13.addObject(sketch14)
sketch14.AttachmentSupport = (doc.getObject("XY_Plane012"), [""])
sketch14.MapMode = "FlatFace"
sketch14.AttachmentOffset = App.Placement(App.Vector(0, 0, 18 * 25.4), App.Rotation())
sketch14.addGeometry([
    Part.LineSegment(App.Vector(-191.29375, 88.9, 0), App.Vector(-191.29375, 0, 0)),
    Part.LineSegment(App.Vector(-191.29375, 0, 0), App.Vector(191.29375, 0, 0)),
    Part.LineSegment(App.Vector(191.29375, 0, 0), App.Vector(191.29375, 88.9, 0)),
    Part.LineSegment(App.Vector(191.29375, 88.9, 0), App.Vector(-191.29375, 88.9, 0)),
], False)
sketch14.addConstraint([
    Sketcher.Constraint("Coincident", 0, 2, 1, 1),
    Sketcher.Constraint("Coincident", 1, 2, 2, 1),
    Sketcher.Constraint("Coincident", 2, 2, 3, 1),
    Sketcher.Constraint("Coincident", 3, 2, 0, 1),
    Sketcher.Constraint("Vertical", 0),
    Sketcher.Constraint("Horizontal", 1),
    Sketcher.Constraint("Vertical", 2),
    Sketcher.Constraint("Horizontal", 3),
    Sketcher.Constraint("Symmetric", 0, 2, 1, 2, -1, 1),
    Sketcher.Constraint("DistanceY", 0, 2, 0, 1, Q("3.5 in")),
    Sketcher.Constraint("DistanceX", 1, 1, 1, 2, Q("15.0625 in")),
])
pad14 = doc.addObject("PartDesign::Pad", "Pad013")
body13.addObject(pad14)
pad14.Profile = sketch14
pad14.Length = Q("1.5 in")
pad14.Reversed = True
body14 = doc.addObject("PartDesign::Body", "Body013")

sketch15 = doc.addObject("Sketcher::SketchObject", "Sketch014")
body14.addObject(sketch15)
sketch15.AttachmentSupport = (doc.getObject("XZ_Plane013"), [""])
sketch15.MapMode = "FlatFace"
sketch15.addGeometry([
    Part.LineSegment(App.Vector(-299.24375, 469.9, 0), App.Vector(-299.24375, 457.2, 0)),
    Part.LineSegment(App.Vector(-299.24375, 457.2, 0), App.Vector(299.24375, 457.2, 0)),
    Part.LineSegment(App.Vector(299.24375, 457.2, 0), App.Vector(299.24375, 469.9, 0)),
    Part.LineSegment(App.Vector(299.24375, 469.9, 0), App.Vector(-299.24375, 469.9, 0)),
], False)
sketch15.addConstraint([
    Sketcher.Constraint("Coincident", 0, 2, 1, 1),
    Sketcher.Constraint("Coincident", 1, 2, 2, 1),
    Sketcher.Constraint("Coincident", 2, 2, 3, 1),
    Sketcher.Constraint("Coincident", 3, 2, 0, 1),
    Sketcher.Constraint("Vertical", 0),
    Sketcher.Constraint("Horizontal", 1),
    Sketcher.Constraint("Vertical", 2),
    Sketcher.Constraint("Horizontal", 3),
    Sketcher.Constraint("DistanceY", 0, 2, 0, 1, Q("0.5 in")),
    Sketcher.Constraint("DistanceY", -1, 1, 0, 2, Q("18 in")),
    Sketcher.Constraint("DistanceX", 1, 1, 1, 2, Q("23.5625 in")),
    Sketcher.Constraint("DistanceX", 0, 2, -1, 1, Q("11.78125 in")),
])
pad15 = doc.addObject("PartDesign::Pad", "Pad014")
body14.addObject(pad15)
pad15.Profile = sketch15
pad15.Length = Q("30 in")
pad15.Reversed = True

doc.recompute()
